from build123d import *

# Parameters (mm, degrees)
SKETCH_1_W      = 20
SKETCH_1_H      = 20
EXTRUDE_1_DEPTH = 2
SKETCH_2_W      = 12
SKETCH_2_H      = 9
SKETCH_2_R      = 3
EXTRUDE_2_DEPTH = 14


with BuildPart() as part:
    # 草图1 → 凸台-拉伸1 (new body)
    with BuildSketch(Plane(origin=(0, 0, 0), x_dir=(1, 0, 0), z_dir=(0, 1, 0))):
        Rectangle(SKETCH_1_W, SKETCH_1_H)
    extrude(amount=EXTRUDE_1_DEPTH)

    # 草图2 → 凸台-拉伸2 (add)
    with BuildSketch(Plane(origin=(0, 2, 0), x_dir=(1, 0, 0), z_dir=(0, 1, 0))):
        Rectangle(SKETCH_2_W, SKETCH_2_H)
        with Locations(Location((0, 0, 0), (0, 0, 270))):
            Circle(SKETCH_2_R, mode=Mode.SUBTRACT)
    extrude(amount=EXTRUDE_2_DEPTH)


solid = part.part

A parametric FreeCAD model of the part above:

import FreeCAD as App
import Part
import Sketcher

V = App.Vector
Q = App.Units.Quantity

doc = App.newDocument("Part")
body = doc.addObject("PartDesign::Body", "Body")

# Sketch on XZ plane
sketch1 = body.newObject("Sketcher::SketchObject", "Sketch")
sketch1.AttachmentSupport = (doc.getObject("XZ_Plane"), [""])
sketch1.MapMode = "FlatFace"
sketch1.addGeometry(Part.LineSegment(V(-10, -10, 0), V(-10, 10, 0)), False)
sketch1.addGeometry(Part.LineSegment(V(-10, 10, 0), V(10, 10, 0)), False)
sketch1.addGeometry(Part.LineSegment(V(10, 10, 0), V(10, -10, 0)), False)
sketch1.addGeometry(Part.LineSegment(V(10, -10, 0), V(-10, -10, 0)), False)
sketch1.addConstraint(Sketcher.Constraint("Coincident", 0, 2, 1, 1))
sketch1.addConstraint(Sketcher.Constraint("Coincident", 1, 2, 2, 1))
sketch1.addConstraint(Sketcher.Constraint("Coincident", 2, 2, 3, 1))
sketch1.addConstraint(Sketcher.Constraint("Coincident", 3, 2, 0, 1))
sketch1.addConstraint(Sketcher.Constraint("Vertical", 0))
sketch1.addConstraint(Sketcher.Constraint("Horizontal", 1))
sketch1.addConstraint(Sketcher.Constraint("Vertical", 2))
sketch1.addConstraint(Sketcher.Constraint("Horizontal", 3))
sketch1.addConstraint(Sketcher.Constraint("Symmetric", 0, 2, 2, 2, -1, 1))
sketch1.addConstraint(Sketcher.Constraint("Equal", 3, 0))
sketch1.addConstraint(Sketcher.Constraint("DistanceX", 1, 1, 1, 2, Q("20 mm")))
pad1 = body.newObject("PartDesign::Pad", "Pad")
pad1.Profile = sketch1
pad1.Length = 2
pad1.Reversed = True

# Sketch on XZ plane
sketch2 = body.newObject("Sketcher::SketchObject", "Sketch001")
sketch2.AttachmentSupport = (doc.getObject("XZ_Plane"), [""])
sketch2.MapMode = "FlatFace"
sketch2.AttachmentOffset = App.Placement(V(0, 0, -2), App.Rotation())
sketch2.addGeometry(Part.LineSegment(V(-6, -4.5, 0), V(-6, 4.5, 0)), False)
sketch2.addGeometry(Part.LineSegment(V(-6, 4.5, 0), V(6, 4.5, 0)), False)
sketch2.addGeometry(Part.LineSegment(V(6, 4.5, 0), V(6, -4.5, 0)), False)
sketch2.addGeometry(Part.LineSegment(V(6, -4.5, 0), V(-6, -4.5, 0)), False)
sketch2.addGeometry(Part.Circle(V(0, 0, 0), V(0, 0, 1), 3), False)
sketch2.addConstraint(Sketcher.Constraint("Coincident", 0, 2, 1, 1))
sketch2.addConstraint(Sketcher.Constraint("Coincident", 1, 2, 2, 1))
sketch2.addConstraint(Sketcher.Constraint("Coincident", 2, 2, 3, 1))
sketch2.addConstraint(Sketcher.Constraint("Coincident", 3, 2, 0, 1))
sketch2.addConstraint(Sketcher.Constraint("Vertical", 0))
sketch2.addConstraint(Sketcher.Constraint("Horizontal", 1))
sketch2.addConstraint(Sketcher.Constraint("Vertical", 2))
sketch2.addConstraint(Sketcher.Constraint("Horizontal", 3))
sketch2.addConstraint(Sketcher.Constraint("Coincident", 4, 3, -1, 1))
sketch2.addConstraint(Sketcher.Constraint("Symmetric", 0, 2, 2, 2, -1, 1))
sketch2.addConstraint(Sketcher.Constraint("Diameter", 4, Q("6 mm")))
sketch2.addConstraint(Sketcher.Constraint("DistanceX", 1, 1, 1, 2, Q("12 mm")))
sketch2.addConstraint(Sketcher.Constraint("DistanceY", 0, 1, 0, 2, Q("9 mm")))
pad2 = body.newObject("PartDesign::Pad", "Pad001")
pad2.Profile = sketch2
pad2.Length = 14
pad2.Reversed = True

doc.recompute()
